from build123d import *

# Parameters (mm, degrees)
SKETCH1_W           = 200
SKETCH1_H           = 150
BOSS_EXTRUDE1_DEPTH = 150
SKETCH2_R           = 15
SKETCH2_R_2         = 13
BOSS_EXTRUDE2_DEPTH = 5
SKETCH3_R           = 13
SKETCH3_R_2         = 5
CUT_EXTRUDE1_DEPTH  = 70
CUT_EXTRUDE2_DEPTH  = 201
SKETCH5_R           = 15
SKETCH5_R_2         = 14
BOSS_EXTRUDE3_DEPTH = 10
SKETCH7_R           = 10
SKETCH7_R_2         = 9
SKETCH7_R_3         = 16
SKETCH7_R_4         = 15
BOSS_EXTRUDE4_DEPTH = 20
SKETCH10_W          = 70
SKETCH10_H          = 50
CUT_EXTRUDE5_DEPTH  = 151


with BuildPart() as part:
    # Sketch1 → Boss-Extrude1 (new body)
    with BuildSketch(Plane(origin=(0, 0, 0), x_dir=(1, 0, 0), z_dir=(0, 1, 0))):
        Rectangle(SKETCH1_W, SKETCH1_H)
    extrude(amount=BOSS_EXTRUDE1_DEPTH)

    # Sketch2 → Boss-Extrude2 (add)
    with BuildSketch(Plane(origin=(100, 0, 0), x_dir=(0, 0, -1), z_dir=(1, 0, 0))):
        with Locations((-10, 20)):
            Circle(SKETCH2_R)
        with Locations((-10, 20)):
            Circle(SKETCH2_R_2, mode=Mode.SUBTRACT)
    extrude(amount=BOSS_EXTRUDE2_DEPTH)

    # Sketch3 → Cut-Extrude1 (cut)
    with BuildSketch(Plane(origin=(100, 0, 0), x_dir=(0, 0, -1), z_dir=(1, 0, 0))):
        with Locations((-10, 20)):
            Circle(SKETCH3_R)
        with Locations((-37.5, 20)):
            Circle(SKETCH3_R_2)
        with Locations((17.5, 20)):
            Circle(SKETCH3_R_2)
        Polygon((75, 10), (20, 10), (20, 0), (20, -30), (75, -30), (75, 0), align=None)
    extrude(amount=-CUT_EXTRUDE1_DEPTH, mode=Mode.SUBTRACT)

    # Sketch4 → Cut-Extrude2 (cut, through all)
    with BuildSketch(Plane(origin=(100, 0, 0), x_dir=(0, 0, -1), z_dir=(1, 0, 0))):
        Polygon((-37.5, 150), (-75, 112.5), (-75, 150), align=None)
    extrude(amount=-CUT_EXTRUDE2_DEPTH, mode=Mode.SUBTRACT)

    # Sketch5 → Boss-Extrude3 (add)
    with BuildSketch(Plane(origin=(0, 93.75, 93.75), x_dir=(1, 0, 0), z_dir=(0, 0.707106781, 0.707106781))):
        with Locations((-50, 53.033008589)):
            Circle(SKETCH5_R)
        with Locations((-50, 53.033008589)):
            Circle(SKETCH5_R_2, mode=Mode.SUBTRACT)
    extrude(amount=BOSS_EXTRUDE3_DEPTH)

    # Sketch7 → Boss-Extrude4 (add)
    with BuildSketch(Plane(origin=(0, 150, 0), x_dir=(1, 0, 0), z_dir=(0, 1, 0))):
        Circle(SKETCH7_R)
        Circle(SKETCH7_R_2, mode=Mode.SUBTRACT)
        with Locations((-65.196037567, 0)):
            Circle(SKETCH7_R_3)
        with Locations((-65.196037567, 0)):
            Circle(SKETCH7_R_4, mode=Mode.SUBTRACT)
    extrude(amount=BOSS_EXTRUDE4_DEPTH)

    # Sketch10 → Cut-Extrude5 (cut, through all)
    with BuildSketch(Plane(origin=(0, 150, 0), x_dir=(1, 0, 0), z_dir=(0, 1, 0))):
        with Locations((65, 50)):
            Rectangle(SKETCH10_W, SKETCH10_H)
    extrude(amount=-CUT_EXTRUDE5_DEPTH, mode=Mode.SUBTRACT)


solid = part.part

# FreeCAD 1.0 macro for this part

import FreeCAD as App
import Part
import Sketcher
from FreeCAD import Vector
Q = App.Units.Quantity

doc = App.newDocument("Part")
body = doc.addObject("PartDesign::Body", "Body")

# Sketch on XZ plane
sketch1 = body.newObject("Sketcher::SketchObject", "Sketch")
sketch1.AttachmentSupport = (doc.getObject("XZ_Plane"), [""])
sketch1.MapMode = "FlatFace"
sketch1.addGeometry(Part.LineSegment(Vector(-100, -75, 0), Vector(-100, 75, 0)), False)
sketch1.addGeometry(Part.LineSegment(Vector(-100, 75, 0), Vector(100, 75, 0)), False)
sketch1.addGeometry(Part.LineSegment(Vector(100, 75, 0), Vector(100, -75, 0)), False)
sketch1.addGeometry(Part.LineSegment(Vector(100, -75, 0), Vector(-100, -75, 0)), False)
sketch1.addConstraint(Sketcher.Constraint("Coincident", 0, 2, 1, 1))
sketch1.addConstraint(Sketcher.Constraint("Coincident", 1, 2, 2, 1))
sketch1.addConstraint(Sketcher.Constraint("Coincident", 2, 2, 3, 1))
sketch1.addConstraint(Sketcher.Constraint("Coincident", 3, 2, 0, 1))
sketch1.addConstraint(Sketcher.Constraint("Vertical", 0))
sketch1.addConstraint(Sketcher.Constraint("Horizontal", 1))
sketch1.addConstraint(Sketcher.Constraint("Vertical", 2))
sketch1.addConstraint(Sketcher.Constraint("Horizontal", 3))
sketch1.addConstraint(Sketcher.Constraint("Symmetric", 0, 2, 2, 2, -1, 1))
sketch1.addConstraint(Sketcher.Constraint("DistanceX", 1, 1, 1, 2, Q("200 mm")))
sketch1.addConstraint(Sketcher.Constraint("DistanceY", 0, 1, 0, 2, Q("150 mm")))
pad1 = body.newObject("PartDesign::Pad", "Pad")
pad1.Profile = sketch1
pad1.Length = 150
pad1.Reversed = True

# Sketch on YZ plane
sketch2 = body.newObject("Sketcher::SketchObject", "Sketch001")
sketch2.AttachmentSupport = (doc.getObject("YZ_Plane"), [""])
sketch2.MapMode = "FlatFace"
sketch2.AttachmentOffset = App.Placement(Vector(0, 0, 100), App.Rotation())
sketch2.addGeometry(Part.Circle(Vector(20, 10, 0), Vector(0, 0, 1), 15), False)
sketch2.addGeometry(Part.Circle(Vector(20, 10, 0), Vector(0, 0, 1), 13), False)
sketch2.addConstraint(Sketcher.Constraint("Coincident", 1, 3, 0, 3))
sketch2.addConstraint(Sketcher.Constraint("Diameter", 0, Q("30 mm")))
sketch2.addConstraint(Sketcher.Constraint("Diameter", 1, Q("26 mm")))
sketch2.addConstraint(Sketcher.Constraint("DistanceX", -1, 1, 0, 3, Q("20 mm")))
sketch2.addConstraint(Sketcher.Constraint("DistanceY", -1, 1, 0, 3, Q("10 mm")))
pad2 = body.newObject("PartDesign::Pad", "Pad001")
pad2.Profile = sketch2
pad2.Length = 5

# Sketch on YZ plane
sketch3 = body.newObject("Sketcher::SketchObject", "Sketch002")
sketch3.AttachmentSupport = (doc.getObject("YZ_Plane"), [""])
sketch3.MapMode = "FlatFace"
sketch3.AttachmentOffset = App.Placement(Vector(0, 0, 100), App.Rotation())
sketch3.addGeometry(Part.Circle(Vector(20, 10, 0), Vector(0, 0, 1), 13), False)
sketch3.addGeometry(Part.Circle(Vector(20, 38, 0), Vector(0, 0, 1), 5), False)
sketch3.addGeometry(Part.Circle(Vector(20, -18, 0), Vector(0, 0, 1), 5), False)
sketch3.addGeometry(Part.LineSegment(Vector(10, -75, 0), Vector(10, -20, 0)), False)
sketch3.addGeometry(Part.LineSegment(Vector(10, -20, 0), Vector(-30, -20, 0)), False)
sketch3.addGeometry(Part.LineSegment(Vector(-30, -20, 0), Vector(-30, -75, 0)), False)
sketch3.addGeometry(Part.LineSegment(Vector(-30, -75, 0), Vector(10, -75, 0)), False)
sketch3.addConstraint(Sketcher.Constraint("Coincident", 3, 2, 4, 1))
sketch3.addConstraint(Sketcher.Constraint("Coincident", 4, 2, 5, 1))
sketch3.addConstraint(Sketcher.Constraint("Coincident", 5, 2, 6, 1))
sketch3.addConstraint(Sketcher.Constraint("Coincident", 6, 2, 3, 1))
sketch3.addConstraint(Sketcher.Constraint("Vertical", 3))
sketch3.addConstraint(Sketcher.Constraint("Horizontal", 4))
sketch3.addConstraint(Sketcher.Constraint("Vertical", 5))
sketch3.addConstraint(Sketcher.Constraint("Horizontal", 6))
sketch3.addConstraint(Sketcher.Constraint("Equal", 1, 2))
sketch3.addConstraint(Sketcher.Constraint("Vertical", 0, 3, 1, 3))
sketch3.addConstraint(Sketcher.Constraint("Vertical", 1, 3, 2, 3))
sketch3.addConstraint(Sketcher.Constraint("Diameter", 0, Q("26 mm")))
sketch3.addConstraint(Sketcher.Constraint("Diameter", 1, Q("10 mm")))
sketch3.addConstraint(Sketcher.Constraint("DistanceX", 4, 2, 4, 1, Q("40 mm")))
sketch3.addConstraint(Sketcher.Constraint("DistanceY", 3, 1, 3, 2, Q("55 mm")))
sketch3.addConstraint(Sketcher.Constraint("DistanceX", -1, 1, 0, 3, Q("20 mm")))
sketch3.addConstraint(Sketcher.Constraint("DistanceY", -1, 1, 0, 3, Q("10 mm")))
sketch3.addConstraint(Sketcher.Constraint("DistanceX", -1, 1, 3, 2, Q("10 mm")))
sketch3.addConstraint(Sketcher.Constraint("DistanceY", 3, 2, -1, 1, Q("20 mm")))
sketch3.addConstraint(Sketcher.Constraint("DistanceY", 2, 3, 1, 3, Q("55 mm")))
sketch3.addConstraint(Sketcher.Constraint("DistanceY", -1, 1, 1, 3, Q("37.5 mm")))
pocket1 = body.newObject("PartDesign::Pocket", "Pocket")
pocket1.Profile = sketch3
pocket1.Length = 70

# Sketch on YZ plane
sketch4 = body.newObject("Sketcher::SketchObject", "Sketch003")
sketch4.AttachmentSupport = (doc.getObject("YZ_Plane"), [""])
sketch4.MapMode = "FlatFace"
sketch4.AttachmentOffset = App.Placement(Vector(0, 0, 100), App.Rotation())
sketch4.addGeometry(Part.LineSegment(Vector(112, 75, 0), Vector(150, 38, 0)), False)
sketch4.addGeometry(Part.LineSegment(Vector(150, 38, 0), Vector(150, 75, 0)), False)
sketch4.addGeometry(Part.LineSegment(Vector(150, 75, 0), Vector(112, 75, 0)), False)
sketch4.addConstraint(Sketcher.Constraint("Coincident", 0, 2, 1, 1))
sketch4.addConstraint(Sketcher.Constraint("Coincident", 1, 2, 2, 1))
sketch4.addConstraint(Sketcher.Constraint("Coincident", 2, 2, 0, 1))
sketch4.addConstraint(Sketcher.Constraint("Vertical", 1))
sketch4.addConstraint(Sketcher.Constraint("Horizontal", 2))
sketch4.addConstraint(Sketcher.Constraint("Equal", 2, 1))
sketch4.addConstraint(Sketcher.Constraint("DistanceX", 2, 2, 2, 1, Q("37.5 mm")))
sketch4.addConstraint(Sketcher.Constraint("DistanceX", -1, 1, 0, 2, Q("150 mm")))
sketch4.addConstraint(Sketcher.Constraint("DistanceY", -1, 1, 1, 2, Q("75 mm")))
pocket2 = body.newObject("PartDesign::Pocket", "Pocket001")
pocket2.Profile = sketch4
pocket2.Type = "ThroughAll"

# Sketch on an angled plane
sketch5 = body.newObject("Sketcher::SketchObject", "Sketch004")
sketch5.Placement = App.Placement(Vector(0, 93.75, 93.75), App.Rotation(Vector(1, 0, 0), Vector(0, 0.707106781, -0.707106781), Vector(0, 0.707106781, 0.707106781), "ZXY"))
sketch5.addGeometry(Part.Circle(Vector(-50, 53, 0), Vector(0, 0, 1), 15), False)
sketch5.addGeometry(Part.Circle(Vector(-50, 53, 0), Vector(0, 0, 1), 14), False)
sketch5.addConstraint(Sketcher.Constraint("Coincident", 1, 3, 0, 3))
sketch5.addConstraint(Sketcher.Constraint("Diameter", 0, Q("30 mm")))
sketch5.addConstraint(Sketcher.Constraint("Diameter", 1, Q("28 mm")))
sketch5.addConstraint(Sketcher.Constraint("DistanceX", 0, 3, -1, 1, Q("50 mm")))
sketch5.addConstraint(Sketcher.Constraint("DistanceY", -1, 1, 0, 3, Q("53.033009 mm")))
pad3 = body.newObject("PartDesign::Pad", "Pad002")
pad3.Profile = sketch5
pad3.Length = 10

# Sketch on XZ plane
sketch6 = body.newObject("Sketcher::SketchObject", "Sketch005")
sketch6.AttachmentSupport = (doc.getObject("XZ_Plane"), [""])
sketch6.MapMode = "FlatFace"
sketch6.AttachmentOffset = App.Placement(Vector(0, 0, -150), App.Rotation())
sketch6.addGeometry(Part.Circle(Vector(0, 0, 0), Vector(0, 0, 1), 10), False)
sketch6.addGeometry(Part.Circle(Vector(0, 0, 0), Vector(0, 0, 1), 9), False)
sketch6.addGeometry(Part.Circle(Vector(-65, 0, 0), Vector(0, 0, 1), 16), False)
sketch6.addGeometry(Part.Circle(Vector(-65, 0, 0), Vector(0, 0, 1), 15), False)
sketch6.addConstraint(Sketcher.Constraint("Coincident", 0, 3, -1, 1))
sketch6.addConstraint(Sketcher.Constraint("Coincident", 1, 3, -1, 1))
sketch6.addConstraint(Sketcher.Constraint("Coincident", 3, 3, 2, 3))
sketch6.addConstraint(Sketcher.Constraint("PointOnObject", 2, 3, -1))
sketch6.addConstraint(Sketcher.Constraint("Diameter", 0, Q("20 mm")))
sketch6.addConstraint(Sketcher.Constraint("Diameter", 1, Q("18 mm")))
sketch6.addConstraint(Sketcher.Constraint("Diameter", 2, Q("32 mm")))
sketch6.addConstraint(Sketcher.Constraint("Diameter", 3, Q("30 mm")))
sketch6.addConstraint(Sketcher.Constraint("DistanceX", 2, 3, -1, 1, Q("65.196038 mm")))
pad4 = body.newObject("PartDesign::Pad", "Pad003")
pad4.Profile = sketch6
pad4.Length = 20
pad4.Reversed = True

# Sketch on XZ plane
sketch7 = body.newObject("Sketcher::SketchObject", "Sketch006")
sketch7.AttachmentSupport = (doc.getObject("XZ_Plane"), [""])
sketch7.MapMode = "FlatFace"
sketch7.AttachmentOffset = App.Placement(Vector(0, 0, -150), App.Rotation())
sketch7.addGeometry(Part.LineSegment(Vector(30, -75, 0), Vector(30, -25, 0)), False)
sketch7.addGeometry(Part.LineSegment(Vector(30, -25, 0), Vector(100, -25, 0)), False)
sketch7.addGeometry(Part.LineSegment(Vector(100, -25, 0), Vector(100, -75, 0)), False)
sketch7.addGeometry(Part.LineSegment(Vector(100, -75, 0), Vector(30, -75, 0)), False)
sketch7.addConstraint(Sketcher.Constraint("Coincident", 0, 2, 1, 1))
sketch7.addConstraint(Sketcher.Constraint("Coincident", 1, 2, 2, 1))
sketch7.addConstraint(Sketcher.Constraint("Coincident", 2, 2, 3, 1))
sketch7.addConstraint(Sketcher.Constraint("Coincident", 3, 2, 0, 1))
sketch7.addConstraint(Sketcher.Constraint("Vertical", 0))
sketch7.addConstraint(Sketcher.Constraint("Horizontal", 1))
sketch7.addConstraint(Sketcher.Constraint("Vertical", 2))
sketch7.addConstraint(Sketcher.Constraint("Horizontal", 3))
sketch7.addConstraint(Sketcher.Constraint("DistanceX", 1, 1, 1, 2, Q("70 mm")))
sketch7.addConstraint(Sketcher.Constraint("DistanceY", 0, 1, 0, 2, Q("50 mm")))
sketch7.addConstraint(Sketcher.Constraint("DistanceX", -1, 1, 0, 2, Q("30 mm")))
sketch7.addConstraint(Sketcher.Constraint("DistanceY", 0, 2, -1, 1, Q("25 mm")))
pocket3 = body.newObject("PartDesign::Pocket", "Pocket002")
pocket3.Profile = sketch7
pocket3.Type = "ThroughAll"
pocket3.Reversed = True

doc.recompute()
